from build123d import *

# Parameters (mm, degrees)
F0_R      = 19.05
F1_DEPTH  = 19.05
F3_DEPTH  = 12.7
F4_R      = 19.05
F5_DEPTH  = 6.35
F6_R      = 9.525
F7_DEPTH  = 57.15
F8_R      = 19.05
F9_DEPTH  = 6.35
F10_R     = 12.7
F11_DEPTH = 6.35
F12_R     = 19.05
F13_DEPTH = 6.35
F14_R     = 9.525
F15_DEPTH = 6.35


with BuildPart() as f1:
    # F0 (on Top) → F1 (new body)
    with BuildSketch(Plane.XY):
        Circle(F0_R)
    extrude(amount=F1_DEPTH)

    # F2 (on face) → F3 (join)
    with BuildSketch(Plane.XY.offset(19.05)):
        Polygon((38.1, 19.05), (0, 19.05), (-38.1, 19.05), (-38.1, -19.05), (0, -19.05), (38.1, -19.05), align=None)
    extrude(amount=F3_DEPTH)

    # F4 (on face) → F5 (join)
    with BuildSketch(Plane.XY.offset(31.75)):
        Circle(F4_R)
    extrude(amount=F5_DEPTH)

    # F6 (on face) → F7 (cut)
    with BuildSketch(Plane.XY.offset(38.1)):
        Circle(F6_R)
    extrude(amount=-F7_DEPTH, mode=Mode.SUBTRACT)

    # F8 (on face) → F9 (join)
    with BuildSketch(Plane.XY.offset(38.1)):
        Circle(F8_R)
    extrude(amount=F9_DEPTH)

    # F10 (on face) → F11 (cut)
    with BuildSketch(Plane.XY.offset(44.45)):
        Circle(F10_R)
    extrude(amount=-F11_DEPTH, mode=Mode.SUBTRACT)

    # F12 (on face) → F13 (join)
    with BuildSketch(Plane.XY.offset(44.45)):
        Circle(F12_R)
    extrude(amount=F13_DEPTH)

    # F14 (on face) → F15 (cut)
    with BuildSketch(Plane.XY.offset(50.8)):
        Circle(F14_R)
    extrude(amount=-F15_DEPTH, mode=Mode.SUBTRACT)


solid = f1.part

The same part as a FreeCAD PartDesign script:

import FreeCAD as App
import Part
import Sketcher
from FreeCAD import Vector
Q = App.Units.Quantity

doc = App.newDocument("Part")
body = doc.addObject("PartDesign::Body", "Body")

# Sketch on XY plane
sketch1 = body.newObject("Sketcher::SketchObject", "Sketch")
sketch1.AttachmentSupport = (doc.getObject("XY_Plane"), [""])
sketch1.MapMode = "FlatFace"
sketch1.addGeometry(Part.Circle(Vector(0, 0, 0), Vector(0, 0, 1), 19), False)
sketch1.addConstraint([
    Sketcher.Constraint("Coincident", 0, 3, -1, 1),
    Sketcher.Constraint("Diameter", 0, Q("1.5 in")),
])
pad1 = body.newObject("PartDesign::Pad", "Pad")
pad1.Profile = sketch1
pad1.Length = Q("0.75 in")

# Sketch on XY plane
sketch2 = body.newObject("Sketcher::SketchObject", "Sketch001")
sketch2.AttachmentSupport = (doc.getObject("XY_Plane"), [""])
sketch2.MapMode = "FlatFace"
sketch2.AttachmentOffset = App.Placement(Vector(0, 0, 0.75 * 25.4), App.Rotation())
sketch2.addGeometry([
    Part.LineSegment(Vector(38, 19, 0), Vector(-38, 19, 0)),
    Part.LineSegment(Vector(-38, 19, 0), Vector(-38, -19, 0)),
    Part.LineSegment(Vector(-38, -19, 0), Vector(38, -19, 0)),
    Part.LineSegment(Vector(38, -19, 0), Vector(38, 19, 0)),
], False)
sketch2.addConstraint([
    Sketcher.Constraint("Coincident", 0, 2, 1, 1),
    Sketcher.Constraint("Coincident", 1, 2, 2, 1),
    Sketcher.Constraint("Coincident", 2, 2, 3, 1),
    Sketcher.Constraint("Coincident", 3, 2, 0, 1),
    Sketcher.Constraint("Horizontal", 0),
    Sketcher.Constraint("Vertical", 1),
    Sketcher.Constraint("Horizontal", 2),
    Sketcher.Constraint("Vertical", 3),
    Sketcher.Constraint("Symmetric", 0, 2, 2, 2, -1, 1),
    Sketcher.Constraint("DistanceX", 0, 2, 0, 1, Q("3 in")),
    Sketcher.Constraint("DistanceY", 1, 2, 1, 1, Q("1.5 in")),
])
pad2 = body.newObject("PartDesign::Pad", "Pad001")
pad2.Profile = sketch2
pad2.Length = Q("0.5 in")

# Sketch on XY plane
sketch3 = body.newObject("Sketcher::SketchObject", "Sketch002")
sketch3.AttachmentSupport = (doc.getObject("XY_Plane"), [""])
sketch3.MapMode = "FlatFace"
sketch3.AttachmentOffset = App.Placement(Vector(0, 0, 1.25 * 25.4), App.Rotation())
sketch3.addGeometry(Part.Circle(Vector(0, 0, 0), Vector(0, 0, 1), 19), False)
sketch3.addConstraint([
    Sketcher.Constraint("Coincident", 0, 3, -1, 1),
    Sketcher.Constraint("Diameter", 0, Q("1.5 in")),
])
pad3 = body.newObject("PartDesign::Pad", "Pad002")
pad3.Profile = sketch3
pad3.Length = Q("0.25 in")

# Sketch on XY plane
sketch4 = body.newObject("Sketcher::SketchObject", "Sketch003")
sketch4.AttachmentSupport = (doc.getObject("XY_Plane"), [""])
sketch4.MapMode = "FlatFace"
sketch4.AttachmentOffset = App.Placement(Vector(0, 0, 1.5 * 25.4), App.Rotation())
sketch4.addGeometry(Part.Circle(Vector(0, 0, 0), Vector(0, 0, 1), 10), False)
sketch4.addConstraint([
    Sketcher.Constraint("Coincident", 0, 3, -1, 1),
    Sketcher.Constraint("Diameter", 0, Q("0.75 in")),
])
pocket1 = body.newObject("PartDesign::Pocket", "Pocket")
pocket1.Profile = sketch4
pocket1.Length = Q("2.25 in")

# Sketch on XY plane
sketch5 = body.newObject("Sketcher::SketchObject", "Sketch004")
sketch5.AttachmentSupport = (doc.getObject("XY_Plane"), [""])
sketch5.MapMode = "FlatFace"
sketch5.AttachmentOffset = App.Placement(Vector(0, 0, 1.5 * 25.4), App.Rotation())
sketch5.addGeometry(Part.Circle(Vector(0, 0, 0), Vector(0, 0, 1), 19), False)
sketch5.addConstraint([
    Sketcher.Constraint("Coincident", 0, 3, -1, 1),
    Sketcher.Constraint("Diameter", 0, Q("1.5 in")),
])
pad4 = body.newObject("PartDesign::Pad", "Pad003")
pad4.Profile = sketch5
pad4.Length = Q("0.25 in")

# Sketch on XY plane
sketch6 = body.newObject("Sketcher::SketchObject", "Sketch005")
sketch6.AttachmentSupport = (doc.getObject("XY_Plane"), [""])
sketch6.MapMode = "FlatFace"
sketch6.AttachmentOffset = App.Placement(Vector(0, 0, 1.75 * 25.4), App.Rotation())
sketch6.addGeometry(Part.Circle(Vector(0, 0, 0), Vector(0, 0, 1), 13), False)
sketch6.addConstraint([
    Sketcher.Constraint("Coincident", 0, 3, -1, 1),
    Sketcher.Constraint("Diameter", 0, Q("1 in")),
])
pocket2 = body.newObject("PartDesign::Pocket", "Pocket001")
pocket2.Profile = sketch6
pocket2.Length = Q("0.25 in")

# Sketch on XY plane
sketch7 = body.newObject("Sketcher::SketchObject", "Sketch006")
sketch7.AttachmentSupport = (doc.getObject("XY_Plane"), [""])
sketch7.MapMode = "FlatFace"
sketch7.AttachmentOffset = App.Placement(Vector(0, 0, 1.75 * 25.4), App.Rotation())
sketch7.addGeometry(Part.Circle(Vector(0, 0, 0), Vector(0, 0, 1), 19), False)
sketch7.addConstraint([
    Sketcher.Constraint("Coincident", 0, 3, -1, 1),
    Sketcher.Constraint("Diameter", 0, Q("1.5 in")),
])
pad5 = body.newObject("PartDesign::Pad", "Pad004")
pad5.Profile = sketch7
pad5.Length = Q("0.25 in")

# Sketch on XY plane
sketch8 = body.newObject("Sketcher::SketchObject", "Sketch007")
sketch8.AttachmentSupport = (doc.getObject("XY_Plane"), [""])
sketch8.MapMode = "FlatFace"
sketch8.AttachmentOffset = App.Placement(Vector(0, 0, 2 * 25.4), App.Rotation())
sketch8.addGeometry(Part.Circle(Vector(0, 0, 0), Vector(0, 0, 1), 10), False)
sketch8.addConstraint([
    Sketcher.Constraint("Coincident", 0, 3, -1, 1),
    Sketcher.Constraint("Diameter", 0, Q("0.75 in")),
])
pocket3 = body.newObject("PartDesign::Pocket", "Pocket002")
pocket3.Profile = sketch8
pocket3.Length = Q("0.25 in")

doc.recompute()
